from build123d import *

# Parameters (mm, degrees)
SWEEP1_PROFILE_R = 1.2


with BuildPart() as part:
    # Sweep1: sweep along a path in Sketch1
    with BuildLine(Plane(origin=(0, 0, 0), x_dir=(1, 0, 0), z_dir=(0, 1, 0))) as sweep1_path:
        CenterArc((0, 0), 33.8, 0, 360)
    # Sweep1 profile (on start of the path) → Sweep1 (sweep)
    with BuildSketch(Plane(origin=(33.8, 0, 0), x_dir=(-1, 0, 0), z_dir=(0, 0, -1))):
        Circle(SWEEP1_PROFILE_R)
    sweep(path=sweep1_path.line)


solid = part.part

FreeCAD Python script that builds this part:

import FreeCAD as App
import Part
import Sketcher

doc = App.newDocument("Part")
body = doc.addObject("PartDesign::Body", "Body")

# Sketch on XY plane
sketch1 = body.newObject("Sketcher::SketchObject", "Sketch")
sketch1.AttachmentSupport = (doc.getObject("XY_Plane"), [""])
sketch1.MapMode = "FlatFace"
sketch1.addGeometry(Part.Circle(App.Vector(33.8, 0, 0), App.Vector(0, 0, 1), 1.2), False)
sketch1.addConstraint(Sketcher.Constraint("PointOnObject", 0, 3, -1))
sketch1.addConstraint(Sketcher.Constraint("Diameter", 0, 2.4))
sketch1.addConstraint(Sketcher.Constraint("DistanceX", -1, 1, 0, 3, 33.8))

# Sketch on XZ plane
sketch2 = body.newObject("Sketcher::SketchObject", "Sketch001")
sketch2.AttachmentSupport = (doc.getObject("XZ_Plane"), [""])
sketch2.MapMode = "FlatFace"
sketch2.addGeometry(Part.Circle(App.Vector(0, 0, 0), App.Vector(0, 0, 1), 34), False)
sketch2.addConstraint(Sketcher.Constraint("Coincident", 0, 3, -1, 1))
sketch2.addConstraint(Sketcher.Constraint("Diameter", 0, 67.6))
doc.recompute()

additivepipe = body.newObject("PartDesign::AdditivePipe", "AdditivePipe")
additivepipe.Profile = sketch1
additivepipe.Spine = (sketch2, ["Edge1"])

doc.recompute()
